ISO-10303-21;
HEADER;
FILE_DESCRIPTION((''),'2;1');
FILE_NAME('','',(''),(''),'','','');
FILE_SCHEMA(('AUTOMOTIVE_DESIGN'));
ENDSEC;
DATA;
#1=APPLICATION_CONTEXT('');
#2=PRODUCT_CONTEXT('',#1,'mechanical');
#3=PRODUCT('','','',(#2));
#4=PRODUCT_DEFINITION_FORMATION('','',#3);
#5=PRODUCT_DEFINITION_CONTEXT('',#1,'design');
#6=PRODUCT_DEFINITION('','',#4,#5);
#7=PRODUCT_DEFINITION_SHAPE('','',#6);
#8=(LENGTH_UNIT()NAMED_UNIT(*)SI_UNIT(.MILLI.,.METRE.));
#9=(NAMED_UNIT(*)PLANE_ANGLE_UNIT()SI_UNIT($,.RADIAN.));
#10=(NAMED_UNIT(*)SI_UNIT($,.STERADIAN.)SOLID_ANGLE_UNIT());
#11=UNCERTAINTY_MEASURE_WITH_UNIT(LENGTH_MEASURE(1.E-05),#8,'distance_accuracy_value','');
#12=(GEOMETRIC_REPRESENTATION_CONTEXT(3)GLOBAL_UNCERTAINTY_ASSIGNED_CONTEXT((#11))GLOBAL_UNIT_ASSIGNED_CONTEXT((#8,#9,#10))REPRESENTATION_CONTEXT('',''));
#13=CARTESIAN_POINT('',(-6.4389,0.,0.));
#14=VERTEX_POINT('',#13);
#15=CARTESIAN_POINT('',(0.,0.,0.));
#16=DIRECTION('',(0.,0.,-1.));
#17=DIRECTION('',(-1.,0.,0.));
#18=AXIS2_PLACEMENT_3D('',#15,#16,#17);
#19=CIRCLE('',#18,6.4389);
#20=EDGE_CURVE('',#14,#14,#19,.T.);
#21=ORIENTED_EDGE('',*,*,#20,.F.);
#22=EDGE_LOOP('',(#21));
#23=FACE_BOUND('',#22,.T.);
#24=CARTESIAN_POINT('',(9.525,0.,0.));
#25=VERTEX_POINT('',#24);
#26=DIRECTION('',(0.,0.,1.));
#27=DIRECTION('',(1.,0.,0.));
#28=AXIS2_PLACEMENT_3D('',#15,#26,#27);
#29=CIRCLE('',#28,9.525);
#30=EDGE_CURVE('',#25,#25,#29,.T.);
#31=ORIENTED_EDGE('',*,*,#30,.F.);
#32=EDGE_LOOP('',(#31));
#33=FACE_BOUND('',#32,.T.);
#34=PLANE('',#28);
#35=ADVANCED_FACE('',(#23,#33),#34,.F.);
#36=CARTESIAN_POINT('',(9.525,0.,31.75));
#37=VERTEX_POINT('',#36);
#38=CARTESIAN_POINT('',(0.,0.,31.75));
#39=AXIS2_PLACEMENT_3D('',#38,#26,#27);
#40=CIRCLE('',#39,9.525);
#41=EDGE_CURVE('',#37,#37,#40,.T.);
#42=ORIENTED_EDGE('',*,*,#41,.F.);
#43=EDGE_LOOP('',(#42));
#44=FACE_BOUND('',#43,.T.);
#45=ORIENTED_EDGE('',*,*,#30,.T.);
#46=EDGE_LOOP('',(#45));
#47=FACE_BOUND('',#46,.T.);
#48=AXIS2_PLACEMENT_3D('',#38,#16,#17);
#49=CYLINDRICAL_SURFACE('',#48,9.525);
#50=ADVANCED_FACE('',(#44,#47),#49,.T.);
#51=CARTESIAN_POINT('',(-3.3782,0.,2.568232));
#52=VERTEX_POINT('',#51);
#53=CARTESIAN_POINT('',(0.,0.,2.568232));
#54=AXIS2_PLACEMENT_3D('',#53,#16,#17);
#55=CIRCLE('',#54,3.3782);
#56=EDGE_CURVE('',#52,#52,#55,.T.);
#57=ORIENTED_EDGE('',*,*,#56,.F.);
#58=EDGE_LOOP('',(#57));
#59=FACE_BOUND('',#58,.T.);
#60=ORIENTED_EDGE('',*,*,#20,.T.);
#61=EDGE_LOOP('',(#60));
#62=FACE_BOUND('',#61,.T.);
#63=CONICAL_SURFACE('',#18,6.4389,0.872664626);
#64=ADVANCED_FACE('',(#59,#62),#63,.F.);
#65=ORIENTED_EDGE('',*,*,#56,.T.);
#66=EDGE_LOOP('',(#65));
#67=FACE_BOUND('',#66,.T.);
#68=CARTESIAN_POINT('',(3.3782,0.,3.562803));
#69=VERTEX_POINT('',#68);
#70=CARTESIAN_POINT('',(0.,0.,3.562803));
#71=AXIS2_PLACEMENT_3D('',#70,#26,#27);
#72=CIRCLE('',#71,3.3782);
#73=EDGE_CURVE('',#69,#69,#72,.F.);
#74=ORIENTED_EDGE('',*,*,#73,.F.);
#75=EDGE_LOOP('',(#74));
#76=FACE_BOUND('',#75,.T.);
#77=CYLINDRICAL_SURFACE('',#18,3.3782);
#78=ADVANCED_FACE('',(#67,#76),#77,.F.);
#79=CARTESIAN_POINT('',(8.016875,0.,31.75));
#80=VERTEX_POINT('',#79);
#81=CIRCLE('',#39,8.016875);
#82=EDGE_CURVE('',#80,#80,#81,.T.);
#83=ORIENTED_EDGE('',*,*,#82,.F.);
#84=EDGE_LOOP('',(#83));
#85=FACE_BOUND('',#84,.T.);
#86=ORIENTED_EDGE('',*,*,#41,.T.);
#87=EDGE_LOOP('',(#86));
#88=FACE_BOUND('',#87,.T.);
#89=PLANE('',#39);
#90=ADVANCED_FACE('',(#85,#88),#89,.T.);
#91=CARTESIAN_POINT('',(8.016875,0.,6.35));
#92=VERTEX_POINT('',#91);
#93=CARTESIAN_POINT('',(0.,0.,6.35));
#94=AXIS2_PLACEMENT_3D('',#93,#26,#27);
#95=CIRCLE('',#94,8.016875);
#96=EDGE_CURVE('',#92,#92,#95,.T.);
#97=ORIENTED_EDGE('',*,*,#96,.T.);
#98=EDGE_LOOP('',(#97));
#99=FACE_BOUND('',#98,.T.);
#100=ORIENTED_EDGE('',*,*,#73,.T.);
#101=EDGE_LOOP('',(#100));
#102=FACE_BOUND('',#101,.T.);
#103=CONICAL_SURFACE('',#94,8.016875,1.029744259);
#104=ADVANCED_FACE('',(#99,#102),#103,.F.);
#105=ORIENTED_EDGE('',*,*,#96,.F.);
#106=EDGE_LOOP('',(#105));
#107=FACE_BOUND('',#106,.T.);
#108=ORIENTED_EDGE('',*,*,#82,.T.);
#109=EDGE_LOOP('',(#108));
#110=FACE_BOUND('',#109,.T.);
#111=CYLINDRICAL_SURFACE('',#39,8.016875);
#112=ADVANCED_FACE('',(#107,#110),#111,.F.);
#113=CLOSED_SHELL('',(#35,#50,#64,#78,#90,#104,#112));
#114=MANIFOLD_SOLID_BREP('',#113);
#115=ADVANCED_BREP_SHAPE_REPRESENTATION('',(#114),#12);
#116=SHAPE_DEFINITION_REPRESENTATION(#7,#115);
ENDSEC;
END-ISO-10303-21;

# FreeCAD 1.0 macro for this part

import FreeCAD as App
import Part
import Sketcher

V = App.Vector
Q = App.Units.Quantity

doc = App.newDocument("Part")
body = doc.addObject("PartDesign::Body", "Body")

sketch1 = body.newObject("Sketcher::SketchObject", "Sketch")
sketch1.AttachmentSupport = (doc.getObject("XY_Plane"), [""])
sketch1.MapMode = "FlatFace"
sketch1.addGeometry(Part.Circle(V(0, 0, 0), V(0, 0, 1), 9.525), False)
sketch1.addConstraint(Sketcher.Constraint("Coincident", 0, 3, -1, 1))
sketch1.addConstraint(Sketcher.Constraint("Diameter", 0, Q("0.75 in")))
pad1 = body.newObject("PartDesign::Pad", "Pad")
pad1.Profile = sketch1
pad1.Length = Q("1.25 in")

sketch2 = body.newObject("Sketcher::SketchObject", "Sketch001")
sketch2.AttachmentSupport = (doc.getObject("XY_Plane"), [""])
sketch2.MapMode = "FlatFace"
sketch2.AttachmentOffset = App.Placement(V(0, 0, 1.25 * 25.4), App.Rotation())
sketch2.addGeometry(Part.Circle(V(0, 0, 0), V(0, 0, 1), 8.016875), False)
sketch2.addConstraint(Sketcher.Constraint("Coincident", 0, 3, -1, 1))
sketch2.addConstraint(Sketcher.Constraint("Diameter", 0, 16.03375))
doc.recompute()
hole = body.newObject("PartDesign::Hole", "Hole")
hole.Profile = sketch2
hole.ThreadType = "None"
hole.Diameter = 16.03375
hole.DepthType = "Dimension"
hole.Depth = Q("1 in")
hole.DrillPoint = "Angled"
hole.DrillPointAngle = 118

sketch3 = body.newObject("Sketcher::SketchObject", "Sketch002")
sketch3.AttachmentSupport = (doc.getObject("XY_Plane"), [""])
sketch3.MapMode = "FlatFace"
sketch3.addGeometry(Part.Circle(V(0, 0, 0), V(0, 0, 1), 3.3782), False)
sketch3.addConstraint(Sketcher.Constraint("Coincident", 0, 3, -1, 1))
sketch3.addConstraint(Sketcher.Constraint("Diameter", 0, Q("0.266 in")))
doc.recompute()
hole2 = body.newObject("PartDesign::Hole", "Hole001")
hole2.Profile = sketch3
hole2.ThreadType = "None"
hole2.Diameter = Q("0.266 in")
hole2.DepthType = "Dimension"
hole2.Depth = Q("1 in")
hole2.DrillPoint = "Angled"
hole2.DrillPointAngle = 118
hole2.HoleCutType = "Countersink"
hole2.HoleCutDiameter = Q("0.507 in")
hole2.HoleCutCountersinkAngle = 100
hole2.Reversed = True

doc.recompute()
